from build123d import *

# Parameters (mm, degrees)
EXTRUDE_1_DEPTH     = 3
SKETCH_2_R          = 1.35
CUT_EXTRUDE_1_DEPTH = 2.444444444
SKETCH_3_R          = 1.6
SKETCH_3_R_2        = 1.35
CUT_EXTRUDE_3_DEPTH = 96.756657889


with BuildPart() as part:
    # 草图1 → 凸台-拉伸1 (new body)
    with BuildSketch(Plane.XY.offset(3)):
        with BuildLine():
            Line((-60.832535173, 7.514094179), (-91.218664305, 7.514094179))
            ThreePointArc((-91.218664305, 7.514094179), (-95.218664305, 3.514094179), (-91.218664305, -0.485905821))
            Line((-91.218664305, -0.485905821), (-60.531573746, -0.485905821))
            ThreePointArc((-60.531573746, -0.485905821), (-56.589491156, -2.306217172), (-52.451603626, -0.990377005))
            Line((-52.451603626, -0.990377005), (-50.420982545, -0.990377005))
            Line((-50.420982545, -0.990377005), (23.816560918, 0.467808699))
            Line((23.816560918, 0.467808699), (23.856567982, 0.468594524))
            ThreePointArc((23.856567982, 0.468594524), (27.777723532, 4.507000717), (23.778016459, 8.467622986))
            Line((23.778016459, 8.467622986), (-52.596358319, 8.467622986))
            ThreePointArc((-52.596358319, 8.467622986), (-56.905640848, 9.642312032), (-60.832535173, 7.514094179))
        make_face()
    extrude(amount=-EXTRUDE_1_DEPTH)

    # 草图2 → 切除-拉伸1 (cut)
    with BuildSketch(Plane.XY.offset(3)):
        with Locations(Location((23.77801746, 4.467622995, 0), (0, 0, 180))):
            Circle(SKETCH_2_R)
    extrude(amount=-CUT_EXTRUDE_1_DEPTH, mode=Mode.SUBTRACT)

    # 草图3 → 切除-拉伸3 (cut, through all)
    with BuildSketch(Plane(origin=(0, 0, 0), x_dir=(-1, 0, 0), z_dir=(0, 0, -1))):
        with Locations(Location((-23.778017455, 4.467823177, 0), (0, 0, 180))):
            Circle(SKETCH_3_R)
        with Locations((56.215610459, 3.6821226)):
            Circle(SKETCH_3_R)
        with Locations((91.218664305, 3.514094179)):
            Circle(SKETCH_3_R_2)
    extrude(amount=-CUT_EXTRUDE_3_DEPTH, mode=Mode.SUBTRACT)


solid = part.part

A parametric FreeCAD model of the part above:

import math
import FreeCAD as App
import Part
import Sketcher
Q = App.Units.Quantity

doc = App.newDocument("Part")
body = doc.addObject("PartDesign::Body", "Body")

sketch1 = doc.addObject("Sketcher::SketchObject", "Sketch")
body.addObject(sketch1)
sketch1.AttachmentSupport = (doc.XY_Plane, [""])
sketch1.MapMode = "FlatFace"
sketch1.AttachmentOffset = App.Placement(App.Vector(0, 0, 3), App.Rotation())
sketch1.addGeometry([
    Part.LineSegment(App.Vector(-60.832535, 7.514094, 0), App.Vector(-91.218664, 7.514094, 0)),
    Part.ArcOfCircle(Part.Circle(App.Vector(-91.218664, 3.514094, 0), App.Vector(0, 0, 1), 4), math.radians(90), math.radians(270)),
    Part.LineSegment(App.Vector(-91.218664, -0.485906, 0), App.Vector(-60.531574, -0.485906, 0)),
    Part.ArcOfCircle(Part.Circle(App.Vector(-56.21561, 3.682123, 0), App.Vector(0, 0, 1), 6), math.radians(-135.998962), math.radians(-51.146263)),
    Part.LineSegment(App.Vector(-52.451604, -0.990377, 0), App.Vector(-50.420983, -0.990377, 0)),
    Part.LineSegment(App.Vector(-50.420983, -0.990377, 0), App.Vector(23.816561, 0.467809, 0)),
    Part.LineSegment(App.Vector(23.816561, 0.467809, 0), App.Vector(23.856568, 0.468595, 0)),
    Part.ArcOfCircle(Part.Circle(App.Vector(23.778016, 4.467723, 0), App.Vector(0, 0, 1), 3.9999), math.radians(-88.874732), math.radians(90)),
    Part.LineSegment(App.Vector(23.778016, 8.467623, 0), App.Vector(-52.596358, 8.467623, 0)),
    Part.ArcOfCircle(Part.Circle(App.Vector(-56.21561, 3.682123, 0), App.Vector(0, 0, 1), 6), math.radians(52.89995), math.radians(140.307885)),
], False)
sketch1.addConstraint([
    Sketcher.Constraint("Tangent", 0, 2, 1, 1),
    Sketcher.Constraint("Tangent", 1, 2, 2, 1),
    Sketcher.Constraint("Coincident", 2, 2, 3, 1),
    Sketcher.Constraint("Coincident", 3, 2, 4, 1),
    Sketcher.Constraint("Coincident", 4, 2, 5, 1),
    Sketcher.Constraint("Coincident", 5, 2, 6, 1),
    Sketcher.Constraint("Tangent", 6, 2, 7, 1),
    Sketcher.Constraint("Tangent", 7, 2, 8, 1),
    Sketcher.Constraint("Coincident", 8, 2, 9, 1),
    Sketcher.Constraint("Coincident", 9, 2, 0, 1),
    Sketcher.Constraint("Horizontal", 0),
    Sketcher.Constraint("Horizontal", 2),
    Sketcher.Constraint("Horizontal", 4),
    Sketcher.Constraint("Horizontal", 8),
    Sketcher.Constraint("Coincident", 9, 3, 3, 3),
    Sketcher.Constraint("Equal", 3, 9),
    Sketcher.Constraint("Parallel", 5, 6),
    Sketcher.Constraint("Radius", 1, Q("4 mm")),
    Sketcher.Constraint("Radius", 3, Q("6 mm")),
    Sketcher.Constraint("Radius", 7, Q("3.9999 mm")),
    Sketcher.Constraint("DistanceX", 4, 2, 7, 2, Q("74.198999 mm")),
    Sketcher.Constraint("DistanceY", 4, 2, 7, 2, Q("9.458 mm")),
    Sketcher.Constraint("DistanceX", 0, 2, 0, 1, Q("30.386129 mm")),
    Sketcher.Constraint("DistanceX", 2, 1, 2, 2, Q("30.687091 mm")),
    Sketcher.Constraint("DistanceX", 4, 1, 4, 2, Q("2.030621 mm")),
    Sketcher.Constraint("DistanceY", 3, 3, 7, 3, Q("0.7856 mm")),
    Sketcher.Constraint("DistanceX", 3, 3, -1, 1, Q("56.21561 mm")),
    Sketcher.Constraint("DistanceX", -1, 1, 5, 2, Q("23.816561 mm")),
    Sketcher.Constraint("DistanceY", -1, 1, 5, 2, Q("0.467809 mm")),
])
pad1 = doc.addObject("PartDesign::Pad", "Pad")
body.addObject(pad1)
pad1.Profile = sketch1
pad1.Length = 3
pad1.Reversed = True

sketch2 = doc.addObject("Sketcher::SketchObject", "Sketch001")
body.addObject(sketch2)
sketch2.AttachmentSupport = (doc.XY_Plane, [""])
sketch2.MapMode = "FlatFace"
sketch2.AttachmentOffset = App.Placement(App.Vector(0, 0, 3), App.Rotation())
sketch2.addGeometry(Part.Circle(App.Vector(23.778017, 4.467623, 0), App.Vector(0, 0, 1), 1.35), False)
sketch2.addConstraint([
    Sketcher.Constraint("Diameter", 0, Q("2.7 mm")),
    Sketcher.Constraint("DistanceX", -1, 1, 0, 3, Q("23.778017 mm")),
    Sketcher.Constraint("DistanceY", -1, 1, 0, 3, Q("4.467623 mm")),
])
pocket1 = doc.addObject("PartDesign::Pocket", "Pocket")
body.addObject(pocket1)
pocket1.Profile = sketch2
pocket1.Length = 2.444444

sketch3 = doc.addObject("Sketcher::SketchObject", "Sketch002")
body.addObject(sketch3)
sketch3.AttachmentSupport = (doc.XY_Plane, [""])
sketch3.MapMode = "FlatFace"
sketch3.addGeometry([
    Part.Circle(App.Vector(23.778017, 4.467823, 0), App.Vector(0, 0, 1), 1.6),
    Part.Circle(App.Vector(-56.21561, 3.682123, 0), App.Vector(0, 0, 1), 1.6),
    Part.Circle(App.Vector(-91.218664, 3.514094, 0), App.Vector(0, 0, 1), 1.35),
], False)
sketch3.addConstraint([
    Sketcher.Constraint("Equal", 0, 1),
    Sketcher.Constraint("Diameter", 0, Q("3.2 mm")),
    Sketcher.Constraint("Diameter", 2, Q("2.7 mm")),
    Sketcher.Constraint("DistanceY", 1, 3, 0, 3, Q("0.785701 mm")),
    Sketcher.Constraint("DistanceX", 1, 3, -1, 1, Q("56.21561 mm")),
    Sketcher.Constraint("DistanceY", 2, 3, 1, 3, Q("0.168028 mm")),
    Sketcher.Constraint("DistanceX", 2, 3, 0, 3, Q("114.996682 mm")),
    Sketcher.Constraint("DistanceX", -1, 1, 0, 3, Q("23.778017 mm")),
    Sketcher.Constraint("DistanceY", -1, 1, 0, 3, Q("4.467823 mm")),
])
pocket2 = doc.addObject("PartDesign::Pocket", "Pocket001")
body.addObject(pocket2)
pocket2.Profile = sketch3
pocket2.Type = "ThroughAll"
pocket2.Reversed = True

doc.recompute()
